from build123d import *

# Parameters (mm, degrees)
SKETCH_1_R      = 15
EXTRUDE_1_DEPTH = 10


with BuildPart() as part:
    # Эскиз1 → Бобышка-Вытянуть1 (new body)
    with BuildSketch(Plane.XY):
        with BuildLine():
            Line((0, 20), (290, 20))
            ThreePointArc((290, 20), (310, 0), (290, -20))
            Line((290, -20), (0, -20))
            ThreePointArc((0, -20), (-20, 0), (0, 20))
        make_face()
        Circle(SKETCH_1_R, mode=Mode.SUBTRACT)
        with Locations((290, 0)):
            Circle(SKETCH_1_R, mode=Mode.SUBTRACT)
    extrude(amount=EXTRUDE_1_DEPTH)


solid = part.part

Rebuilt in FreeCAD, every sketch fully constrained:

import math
import FreeCAD as App
import Part
import Sketcher

doc = App.newDocument("Part")
body = doc.addObject("PartDesign::Body", "Body")

# Sketch on XY plane
sketch1 = body.newObject("Sketcher::SketchObject", "Sketch")
sketch1.AttachmentSupport = (doc.getObject("XY_Plane"), [""])
sketch1.MapMode = "FlatFace"
sketch1.addGeometry([
    Part.LineSegment(App.Vector(290, 20, 0), App.Vector(0, 20, 0)),  # 0
    Part.ArcOfCircle(Part.Circle(App.Vector(0, 0, 0), App.Vector(0, 0, 1), 20), math.radians(90), math.radians(270)),  # 1
    Part.LineSegment(App.Vector(0, -20, 0), App.Vector(290, -20, 0)),  # 2
    Part.ArcOfCircle(Part.Circle(App.Vector(290, 0, 0), App.Vector(0, 0, 1), 20), math.radians(-90), math.radians(90)),  # 3
    Part.Circle(App.Vector(290, 0, 0), App.Vector(0, 0, 1), 15),  # 4
    Part.Circle(App.Vector(0, 0, 0), App.Vector(0, 0, 1), 15),  # 5
], False)
sketch1.addConstraint([
    Sketcher.Constraint("Tangent", 0, 2, 1, 1),
    Sketcher.Constraint("Tangent", 1, 2, 2, 1),
    Sketcher.Constraint("Tangent", 2, 2, 3, 1),
    Sketcher.Constraint("Tangent", 3, 2, 0, 1),
    Sketcher.Constraint("Horizontal", 0),
    Sketcher.Constraint("Horizontal", 2),
    Sketcher.Constraint("Coincident", 1, 3, -1, 1),
    Sketcher.Constraint("Coincident", 5, 3, -1, 1),
    Sketcher.Constraint("Coincident", 4, 3, 3, 3),
    Sketcher.Constraint("Equal", 4, 5),
    Sketcher.Constraint("Diameter", 4, 30.0),
    Sketcher.Constraint("Radius", 1, 20.0),
    Sketcher.Constraint("DistanceX", 0, 2, 0, 1, 290.0),
])
pad1 = body.newObject("PartDesign::Pad", "Pad")
pad1.Profile = sketch1
pad1.Length = 10

doc.recompute()
